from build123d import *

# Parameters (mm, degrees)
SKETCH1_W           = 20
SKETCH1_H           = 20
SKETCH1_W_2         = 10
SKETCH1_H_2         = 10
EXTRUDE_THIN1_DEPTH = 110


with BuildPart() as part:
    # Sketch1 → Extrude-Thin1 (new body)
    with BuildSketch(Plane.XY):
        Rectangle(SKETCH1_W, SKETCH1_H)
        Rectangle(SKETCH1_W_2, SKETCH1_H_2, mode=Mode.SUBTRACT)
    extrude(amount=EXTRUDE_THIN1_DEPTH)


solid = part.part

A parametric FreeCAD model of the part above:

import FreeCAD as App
import Part
import Sketcher

V = App.Vector
Q = App.Units.Quantity


def add_polygon(sketch, points):
    """Adds a closed chain of lines whose ends are joined by coincident constraints."""
    first, n = sketch.GeometryCount, len(points)
    for a, b in zip(points, points[1:] + points[:1]):
        sketch.addGeometry(Part.LineSegment(App.Vector(*a, 0), App.Vector(*b, 0)), False)
    for i in range(n):
        sketch.addConstraint(Sketcher.Constraint("Coincident", first + i, 2, first + (i + 1) % n, 1))

doc = App.newDocument("Part")
body = doc.addObject("PartDesign::Body", "Body")

# Sketch on XY plane
sketch1 = body.newObject("Sketcher::SketchObject", "Sketch")
sketch1.AttachmentSupport = (doc.getObject("XY_Plane"), [""])
sketch1.MapMode = "FlatFace"
add_polygon(sketch1, [(-10, 10), (-10, -10), (10, -10), (10, 10)])  # lines 0-3
add_polygon(sketch1, [(5, -5), (-5, -5), (-5, 5), (5, 5)])  # lines 4-7
sketch1.addConstraint([
    Sketcher.Constraint("Vertical", 0),
    Sketcher.Constraint("Horizontal", 1),
    Sketcher.Constraint("Vertical", 2),
    Sketcher.Constraint("Horizontal", 3),
    Sketcher.Constraint("Horizontal", 4),
    Sketcher.Constraint("Vertical", 5),
    Sketcher.Constraint("Horizontal", 6),
    Sketcher.Constraint("Vertical", 7),
    Sketcher.Constraint("Symmetric", 0, 2, 2, 2, -1, 1),
    Sketcher.Constraint("Symmetric", 4, 2, 6, 2, -1, 1),
    Sketcher.Constraint("Equal", 3, 0),
    Sketcher.Constraint("Equal", 6, 5),
    Sketcher.Constraint("DistanceX", 1, 1, 1, 2, Q("20 mm")),
    Sketcher.Constraint("DistanceX", 4, 2, 4, 1, Q("10 mm")),
])
pad1 = body.newObject("PartDesign::Pad", "Pad")
pad1.Profile = sketch1
pad1.Length = 110

doc.recompute()
